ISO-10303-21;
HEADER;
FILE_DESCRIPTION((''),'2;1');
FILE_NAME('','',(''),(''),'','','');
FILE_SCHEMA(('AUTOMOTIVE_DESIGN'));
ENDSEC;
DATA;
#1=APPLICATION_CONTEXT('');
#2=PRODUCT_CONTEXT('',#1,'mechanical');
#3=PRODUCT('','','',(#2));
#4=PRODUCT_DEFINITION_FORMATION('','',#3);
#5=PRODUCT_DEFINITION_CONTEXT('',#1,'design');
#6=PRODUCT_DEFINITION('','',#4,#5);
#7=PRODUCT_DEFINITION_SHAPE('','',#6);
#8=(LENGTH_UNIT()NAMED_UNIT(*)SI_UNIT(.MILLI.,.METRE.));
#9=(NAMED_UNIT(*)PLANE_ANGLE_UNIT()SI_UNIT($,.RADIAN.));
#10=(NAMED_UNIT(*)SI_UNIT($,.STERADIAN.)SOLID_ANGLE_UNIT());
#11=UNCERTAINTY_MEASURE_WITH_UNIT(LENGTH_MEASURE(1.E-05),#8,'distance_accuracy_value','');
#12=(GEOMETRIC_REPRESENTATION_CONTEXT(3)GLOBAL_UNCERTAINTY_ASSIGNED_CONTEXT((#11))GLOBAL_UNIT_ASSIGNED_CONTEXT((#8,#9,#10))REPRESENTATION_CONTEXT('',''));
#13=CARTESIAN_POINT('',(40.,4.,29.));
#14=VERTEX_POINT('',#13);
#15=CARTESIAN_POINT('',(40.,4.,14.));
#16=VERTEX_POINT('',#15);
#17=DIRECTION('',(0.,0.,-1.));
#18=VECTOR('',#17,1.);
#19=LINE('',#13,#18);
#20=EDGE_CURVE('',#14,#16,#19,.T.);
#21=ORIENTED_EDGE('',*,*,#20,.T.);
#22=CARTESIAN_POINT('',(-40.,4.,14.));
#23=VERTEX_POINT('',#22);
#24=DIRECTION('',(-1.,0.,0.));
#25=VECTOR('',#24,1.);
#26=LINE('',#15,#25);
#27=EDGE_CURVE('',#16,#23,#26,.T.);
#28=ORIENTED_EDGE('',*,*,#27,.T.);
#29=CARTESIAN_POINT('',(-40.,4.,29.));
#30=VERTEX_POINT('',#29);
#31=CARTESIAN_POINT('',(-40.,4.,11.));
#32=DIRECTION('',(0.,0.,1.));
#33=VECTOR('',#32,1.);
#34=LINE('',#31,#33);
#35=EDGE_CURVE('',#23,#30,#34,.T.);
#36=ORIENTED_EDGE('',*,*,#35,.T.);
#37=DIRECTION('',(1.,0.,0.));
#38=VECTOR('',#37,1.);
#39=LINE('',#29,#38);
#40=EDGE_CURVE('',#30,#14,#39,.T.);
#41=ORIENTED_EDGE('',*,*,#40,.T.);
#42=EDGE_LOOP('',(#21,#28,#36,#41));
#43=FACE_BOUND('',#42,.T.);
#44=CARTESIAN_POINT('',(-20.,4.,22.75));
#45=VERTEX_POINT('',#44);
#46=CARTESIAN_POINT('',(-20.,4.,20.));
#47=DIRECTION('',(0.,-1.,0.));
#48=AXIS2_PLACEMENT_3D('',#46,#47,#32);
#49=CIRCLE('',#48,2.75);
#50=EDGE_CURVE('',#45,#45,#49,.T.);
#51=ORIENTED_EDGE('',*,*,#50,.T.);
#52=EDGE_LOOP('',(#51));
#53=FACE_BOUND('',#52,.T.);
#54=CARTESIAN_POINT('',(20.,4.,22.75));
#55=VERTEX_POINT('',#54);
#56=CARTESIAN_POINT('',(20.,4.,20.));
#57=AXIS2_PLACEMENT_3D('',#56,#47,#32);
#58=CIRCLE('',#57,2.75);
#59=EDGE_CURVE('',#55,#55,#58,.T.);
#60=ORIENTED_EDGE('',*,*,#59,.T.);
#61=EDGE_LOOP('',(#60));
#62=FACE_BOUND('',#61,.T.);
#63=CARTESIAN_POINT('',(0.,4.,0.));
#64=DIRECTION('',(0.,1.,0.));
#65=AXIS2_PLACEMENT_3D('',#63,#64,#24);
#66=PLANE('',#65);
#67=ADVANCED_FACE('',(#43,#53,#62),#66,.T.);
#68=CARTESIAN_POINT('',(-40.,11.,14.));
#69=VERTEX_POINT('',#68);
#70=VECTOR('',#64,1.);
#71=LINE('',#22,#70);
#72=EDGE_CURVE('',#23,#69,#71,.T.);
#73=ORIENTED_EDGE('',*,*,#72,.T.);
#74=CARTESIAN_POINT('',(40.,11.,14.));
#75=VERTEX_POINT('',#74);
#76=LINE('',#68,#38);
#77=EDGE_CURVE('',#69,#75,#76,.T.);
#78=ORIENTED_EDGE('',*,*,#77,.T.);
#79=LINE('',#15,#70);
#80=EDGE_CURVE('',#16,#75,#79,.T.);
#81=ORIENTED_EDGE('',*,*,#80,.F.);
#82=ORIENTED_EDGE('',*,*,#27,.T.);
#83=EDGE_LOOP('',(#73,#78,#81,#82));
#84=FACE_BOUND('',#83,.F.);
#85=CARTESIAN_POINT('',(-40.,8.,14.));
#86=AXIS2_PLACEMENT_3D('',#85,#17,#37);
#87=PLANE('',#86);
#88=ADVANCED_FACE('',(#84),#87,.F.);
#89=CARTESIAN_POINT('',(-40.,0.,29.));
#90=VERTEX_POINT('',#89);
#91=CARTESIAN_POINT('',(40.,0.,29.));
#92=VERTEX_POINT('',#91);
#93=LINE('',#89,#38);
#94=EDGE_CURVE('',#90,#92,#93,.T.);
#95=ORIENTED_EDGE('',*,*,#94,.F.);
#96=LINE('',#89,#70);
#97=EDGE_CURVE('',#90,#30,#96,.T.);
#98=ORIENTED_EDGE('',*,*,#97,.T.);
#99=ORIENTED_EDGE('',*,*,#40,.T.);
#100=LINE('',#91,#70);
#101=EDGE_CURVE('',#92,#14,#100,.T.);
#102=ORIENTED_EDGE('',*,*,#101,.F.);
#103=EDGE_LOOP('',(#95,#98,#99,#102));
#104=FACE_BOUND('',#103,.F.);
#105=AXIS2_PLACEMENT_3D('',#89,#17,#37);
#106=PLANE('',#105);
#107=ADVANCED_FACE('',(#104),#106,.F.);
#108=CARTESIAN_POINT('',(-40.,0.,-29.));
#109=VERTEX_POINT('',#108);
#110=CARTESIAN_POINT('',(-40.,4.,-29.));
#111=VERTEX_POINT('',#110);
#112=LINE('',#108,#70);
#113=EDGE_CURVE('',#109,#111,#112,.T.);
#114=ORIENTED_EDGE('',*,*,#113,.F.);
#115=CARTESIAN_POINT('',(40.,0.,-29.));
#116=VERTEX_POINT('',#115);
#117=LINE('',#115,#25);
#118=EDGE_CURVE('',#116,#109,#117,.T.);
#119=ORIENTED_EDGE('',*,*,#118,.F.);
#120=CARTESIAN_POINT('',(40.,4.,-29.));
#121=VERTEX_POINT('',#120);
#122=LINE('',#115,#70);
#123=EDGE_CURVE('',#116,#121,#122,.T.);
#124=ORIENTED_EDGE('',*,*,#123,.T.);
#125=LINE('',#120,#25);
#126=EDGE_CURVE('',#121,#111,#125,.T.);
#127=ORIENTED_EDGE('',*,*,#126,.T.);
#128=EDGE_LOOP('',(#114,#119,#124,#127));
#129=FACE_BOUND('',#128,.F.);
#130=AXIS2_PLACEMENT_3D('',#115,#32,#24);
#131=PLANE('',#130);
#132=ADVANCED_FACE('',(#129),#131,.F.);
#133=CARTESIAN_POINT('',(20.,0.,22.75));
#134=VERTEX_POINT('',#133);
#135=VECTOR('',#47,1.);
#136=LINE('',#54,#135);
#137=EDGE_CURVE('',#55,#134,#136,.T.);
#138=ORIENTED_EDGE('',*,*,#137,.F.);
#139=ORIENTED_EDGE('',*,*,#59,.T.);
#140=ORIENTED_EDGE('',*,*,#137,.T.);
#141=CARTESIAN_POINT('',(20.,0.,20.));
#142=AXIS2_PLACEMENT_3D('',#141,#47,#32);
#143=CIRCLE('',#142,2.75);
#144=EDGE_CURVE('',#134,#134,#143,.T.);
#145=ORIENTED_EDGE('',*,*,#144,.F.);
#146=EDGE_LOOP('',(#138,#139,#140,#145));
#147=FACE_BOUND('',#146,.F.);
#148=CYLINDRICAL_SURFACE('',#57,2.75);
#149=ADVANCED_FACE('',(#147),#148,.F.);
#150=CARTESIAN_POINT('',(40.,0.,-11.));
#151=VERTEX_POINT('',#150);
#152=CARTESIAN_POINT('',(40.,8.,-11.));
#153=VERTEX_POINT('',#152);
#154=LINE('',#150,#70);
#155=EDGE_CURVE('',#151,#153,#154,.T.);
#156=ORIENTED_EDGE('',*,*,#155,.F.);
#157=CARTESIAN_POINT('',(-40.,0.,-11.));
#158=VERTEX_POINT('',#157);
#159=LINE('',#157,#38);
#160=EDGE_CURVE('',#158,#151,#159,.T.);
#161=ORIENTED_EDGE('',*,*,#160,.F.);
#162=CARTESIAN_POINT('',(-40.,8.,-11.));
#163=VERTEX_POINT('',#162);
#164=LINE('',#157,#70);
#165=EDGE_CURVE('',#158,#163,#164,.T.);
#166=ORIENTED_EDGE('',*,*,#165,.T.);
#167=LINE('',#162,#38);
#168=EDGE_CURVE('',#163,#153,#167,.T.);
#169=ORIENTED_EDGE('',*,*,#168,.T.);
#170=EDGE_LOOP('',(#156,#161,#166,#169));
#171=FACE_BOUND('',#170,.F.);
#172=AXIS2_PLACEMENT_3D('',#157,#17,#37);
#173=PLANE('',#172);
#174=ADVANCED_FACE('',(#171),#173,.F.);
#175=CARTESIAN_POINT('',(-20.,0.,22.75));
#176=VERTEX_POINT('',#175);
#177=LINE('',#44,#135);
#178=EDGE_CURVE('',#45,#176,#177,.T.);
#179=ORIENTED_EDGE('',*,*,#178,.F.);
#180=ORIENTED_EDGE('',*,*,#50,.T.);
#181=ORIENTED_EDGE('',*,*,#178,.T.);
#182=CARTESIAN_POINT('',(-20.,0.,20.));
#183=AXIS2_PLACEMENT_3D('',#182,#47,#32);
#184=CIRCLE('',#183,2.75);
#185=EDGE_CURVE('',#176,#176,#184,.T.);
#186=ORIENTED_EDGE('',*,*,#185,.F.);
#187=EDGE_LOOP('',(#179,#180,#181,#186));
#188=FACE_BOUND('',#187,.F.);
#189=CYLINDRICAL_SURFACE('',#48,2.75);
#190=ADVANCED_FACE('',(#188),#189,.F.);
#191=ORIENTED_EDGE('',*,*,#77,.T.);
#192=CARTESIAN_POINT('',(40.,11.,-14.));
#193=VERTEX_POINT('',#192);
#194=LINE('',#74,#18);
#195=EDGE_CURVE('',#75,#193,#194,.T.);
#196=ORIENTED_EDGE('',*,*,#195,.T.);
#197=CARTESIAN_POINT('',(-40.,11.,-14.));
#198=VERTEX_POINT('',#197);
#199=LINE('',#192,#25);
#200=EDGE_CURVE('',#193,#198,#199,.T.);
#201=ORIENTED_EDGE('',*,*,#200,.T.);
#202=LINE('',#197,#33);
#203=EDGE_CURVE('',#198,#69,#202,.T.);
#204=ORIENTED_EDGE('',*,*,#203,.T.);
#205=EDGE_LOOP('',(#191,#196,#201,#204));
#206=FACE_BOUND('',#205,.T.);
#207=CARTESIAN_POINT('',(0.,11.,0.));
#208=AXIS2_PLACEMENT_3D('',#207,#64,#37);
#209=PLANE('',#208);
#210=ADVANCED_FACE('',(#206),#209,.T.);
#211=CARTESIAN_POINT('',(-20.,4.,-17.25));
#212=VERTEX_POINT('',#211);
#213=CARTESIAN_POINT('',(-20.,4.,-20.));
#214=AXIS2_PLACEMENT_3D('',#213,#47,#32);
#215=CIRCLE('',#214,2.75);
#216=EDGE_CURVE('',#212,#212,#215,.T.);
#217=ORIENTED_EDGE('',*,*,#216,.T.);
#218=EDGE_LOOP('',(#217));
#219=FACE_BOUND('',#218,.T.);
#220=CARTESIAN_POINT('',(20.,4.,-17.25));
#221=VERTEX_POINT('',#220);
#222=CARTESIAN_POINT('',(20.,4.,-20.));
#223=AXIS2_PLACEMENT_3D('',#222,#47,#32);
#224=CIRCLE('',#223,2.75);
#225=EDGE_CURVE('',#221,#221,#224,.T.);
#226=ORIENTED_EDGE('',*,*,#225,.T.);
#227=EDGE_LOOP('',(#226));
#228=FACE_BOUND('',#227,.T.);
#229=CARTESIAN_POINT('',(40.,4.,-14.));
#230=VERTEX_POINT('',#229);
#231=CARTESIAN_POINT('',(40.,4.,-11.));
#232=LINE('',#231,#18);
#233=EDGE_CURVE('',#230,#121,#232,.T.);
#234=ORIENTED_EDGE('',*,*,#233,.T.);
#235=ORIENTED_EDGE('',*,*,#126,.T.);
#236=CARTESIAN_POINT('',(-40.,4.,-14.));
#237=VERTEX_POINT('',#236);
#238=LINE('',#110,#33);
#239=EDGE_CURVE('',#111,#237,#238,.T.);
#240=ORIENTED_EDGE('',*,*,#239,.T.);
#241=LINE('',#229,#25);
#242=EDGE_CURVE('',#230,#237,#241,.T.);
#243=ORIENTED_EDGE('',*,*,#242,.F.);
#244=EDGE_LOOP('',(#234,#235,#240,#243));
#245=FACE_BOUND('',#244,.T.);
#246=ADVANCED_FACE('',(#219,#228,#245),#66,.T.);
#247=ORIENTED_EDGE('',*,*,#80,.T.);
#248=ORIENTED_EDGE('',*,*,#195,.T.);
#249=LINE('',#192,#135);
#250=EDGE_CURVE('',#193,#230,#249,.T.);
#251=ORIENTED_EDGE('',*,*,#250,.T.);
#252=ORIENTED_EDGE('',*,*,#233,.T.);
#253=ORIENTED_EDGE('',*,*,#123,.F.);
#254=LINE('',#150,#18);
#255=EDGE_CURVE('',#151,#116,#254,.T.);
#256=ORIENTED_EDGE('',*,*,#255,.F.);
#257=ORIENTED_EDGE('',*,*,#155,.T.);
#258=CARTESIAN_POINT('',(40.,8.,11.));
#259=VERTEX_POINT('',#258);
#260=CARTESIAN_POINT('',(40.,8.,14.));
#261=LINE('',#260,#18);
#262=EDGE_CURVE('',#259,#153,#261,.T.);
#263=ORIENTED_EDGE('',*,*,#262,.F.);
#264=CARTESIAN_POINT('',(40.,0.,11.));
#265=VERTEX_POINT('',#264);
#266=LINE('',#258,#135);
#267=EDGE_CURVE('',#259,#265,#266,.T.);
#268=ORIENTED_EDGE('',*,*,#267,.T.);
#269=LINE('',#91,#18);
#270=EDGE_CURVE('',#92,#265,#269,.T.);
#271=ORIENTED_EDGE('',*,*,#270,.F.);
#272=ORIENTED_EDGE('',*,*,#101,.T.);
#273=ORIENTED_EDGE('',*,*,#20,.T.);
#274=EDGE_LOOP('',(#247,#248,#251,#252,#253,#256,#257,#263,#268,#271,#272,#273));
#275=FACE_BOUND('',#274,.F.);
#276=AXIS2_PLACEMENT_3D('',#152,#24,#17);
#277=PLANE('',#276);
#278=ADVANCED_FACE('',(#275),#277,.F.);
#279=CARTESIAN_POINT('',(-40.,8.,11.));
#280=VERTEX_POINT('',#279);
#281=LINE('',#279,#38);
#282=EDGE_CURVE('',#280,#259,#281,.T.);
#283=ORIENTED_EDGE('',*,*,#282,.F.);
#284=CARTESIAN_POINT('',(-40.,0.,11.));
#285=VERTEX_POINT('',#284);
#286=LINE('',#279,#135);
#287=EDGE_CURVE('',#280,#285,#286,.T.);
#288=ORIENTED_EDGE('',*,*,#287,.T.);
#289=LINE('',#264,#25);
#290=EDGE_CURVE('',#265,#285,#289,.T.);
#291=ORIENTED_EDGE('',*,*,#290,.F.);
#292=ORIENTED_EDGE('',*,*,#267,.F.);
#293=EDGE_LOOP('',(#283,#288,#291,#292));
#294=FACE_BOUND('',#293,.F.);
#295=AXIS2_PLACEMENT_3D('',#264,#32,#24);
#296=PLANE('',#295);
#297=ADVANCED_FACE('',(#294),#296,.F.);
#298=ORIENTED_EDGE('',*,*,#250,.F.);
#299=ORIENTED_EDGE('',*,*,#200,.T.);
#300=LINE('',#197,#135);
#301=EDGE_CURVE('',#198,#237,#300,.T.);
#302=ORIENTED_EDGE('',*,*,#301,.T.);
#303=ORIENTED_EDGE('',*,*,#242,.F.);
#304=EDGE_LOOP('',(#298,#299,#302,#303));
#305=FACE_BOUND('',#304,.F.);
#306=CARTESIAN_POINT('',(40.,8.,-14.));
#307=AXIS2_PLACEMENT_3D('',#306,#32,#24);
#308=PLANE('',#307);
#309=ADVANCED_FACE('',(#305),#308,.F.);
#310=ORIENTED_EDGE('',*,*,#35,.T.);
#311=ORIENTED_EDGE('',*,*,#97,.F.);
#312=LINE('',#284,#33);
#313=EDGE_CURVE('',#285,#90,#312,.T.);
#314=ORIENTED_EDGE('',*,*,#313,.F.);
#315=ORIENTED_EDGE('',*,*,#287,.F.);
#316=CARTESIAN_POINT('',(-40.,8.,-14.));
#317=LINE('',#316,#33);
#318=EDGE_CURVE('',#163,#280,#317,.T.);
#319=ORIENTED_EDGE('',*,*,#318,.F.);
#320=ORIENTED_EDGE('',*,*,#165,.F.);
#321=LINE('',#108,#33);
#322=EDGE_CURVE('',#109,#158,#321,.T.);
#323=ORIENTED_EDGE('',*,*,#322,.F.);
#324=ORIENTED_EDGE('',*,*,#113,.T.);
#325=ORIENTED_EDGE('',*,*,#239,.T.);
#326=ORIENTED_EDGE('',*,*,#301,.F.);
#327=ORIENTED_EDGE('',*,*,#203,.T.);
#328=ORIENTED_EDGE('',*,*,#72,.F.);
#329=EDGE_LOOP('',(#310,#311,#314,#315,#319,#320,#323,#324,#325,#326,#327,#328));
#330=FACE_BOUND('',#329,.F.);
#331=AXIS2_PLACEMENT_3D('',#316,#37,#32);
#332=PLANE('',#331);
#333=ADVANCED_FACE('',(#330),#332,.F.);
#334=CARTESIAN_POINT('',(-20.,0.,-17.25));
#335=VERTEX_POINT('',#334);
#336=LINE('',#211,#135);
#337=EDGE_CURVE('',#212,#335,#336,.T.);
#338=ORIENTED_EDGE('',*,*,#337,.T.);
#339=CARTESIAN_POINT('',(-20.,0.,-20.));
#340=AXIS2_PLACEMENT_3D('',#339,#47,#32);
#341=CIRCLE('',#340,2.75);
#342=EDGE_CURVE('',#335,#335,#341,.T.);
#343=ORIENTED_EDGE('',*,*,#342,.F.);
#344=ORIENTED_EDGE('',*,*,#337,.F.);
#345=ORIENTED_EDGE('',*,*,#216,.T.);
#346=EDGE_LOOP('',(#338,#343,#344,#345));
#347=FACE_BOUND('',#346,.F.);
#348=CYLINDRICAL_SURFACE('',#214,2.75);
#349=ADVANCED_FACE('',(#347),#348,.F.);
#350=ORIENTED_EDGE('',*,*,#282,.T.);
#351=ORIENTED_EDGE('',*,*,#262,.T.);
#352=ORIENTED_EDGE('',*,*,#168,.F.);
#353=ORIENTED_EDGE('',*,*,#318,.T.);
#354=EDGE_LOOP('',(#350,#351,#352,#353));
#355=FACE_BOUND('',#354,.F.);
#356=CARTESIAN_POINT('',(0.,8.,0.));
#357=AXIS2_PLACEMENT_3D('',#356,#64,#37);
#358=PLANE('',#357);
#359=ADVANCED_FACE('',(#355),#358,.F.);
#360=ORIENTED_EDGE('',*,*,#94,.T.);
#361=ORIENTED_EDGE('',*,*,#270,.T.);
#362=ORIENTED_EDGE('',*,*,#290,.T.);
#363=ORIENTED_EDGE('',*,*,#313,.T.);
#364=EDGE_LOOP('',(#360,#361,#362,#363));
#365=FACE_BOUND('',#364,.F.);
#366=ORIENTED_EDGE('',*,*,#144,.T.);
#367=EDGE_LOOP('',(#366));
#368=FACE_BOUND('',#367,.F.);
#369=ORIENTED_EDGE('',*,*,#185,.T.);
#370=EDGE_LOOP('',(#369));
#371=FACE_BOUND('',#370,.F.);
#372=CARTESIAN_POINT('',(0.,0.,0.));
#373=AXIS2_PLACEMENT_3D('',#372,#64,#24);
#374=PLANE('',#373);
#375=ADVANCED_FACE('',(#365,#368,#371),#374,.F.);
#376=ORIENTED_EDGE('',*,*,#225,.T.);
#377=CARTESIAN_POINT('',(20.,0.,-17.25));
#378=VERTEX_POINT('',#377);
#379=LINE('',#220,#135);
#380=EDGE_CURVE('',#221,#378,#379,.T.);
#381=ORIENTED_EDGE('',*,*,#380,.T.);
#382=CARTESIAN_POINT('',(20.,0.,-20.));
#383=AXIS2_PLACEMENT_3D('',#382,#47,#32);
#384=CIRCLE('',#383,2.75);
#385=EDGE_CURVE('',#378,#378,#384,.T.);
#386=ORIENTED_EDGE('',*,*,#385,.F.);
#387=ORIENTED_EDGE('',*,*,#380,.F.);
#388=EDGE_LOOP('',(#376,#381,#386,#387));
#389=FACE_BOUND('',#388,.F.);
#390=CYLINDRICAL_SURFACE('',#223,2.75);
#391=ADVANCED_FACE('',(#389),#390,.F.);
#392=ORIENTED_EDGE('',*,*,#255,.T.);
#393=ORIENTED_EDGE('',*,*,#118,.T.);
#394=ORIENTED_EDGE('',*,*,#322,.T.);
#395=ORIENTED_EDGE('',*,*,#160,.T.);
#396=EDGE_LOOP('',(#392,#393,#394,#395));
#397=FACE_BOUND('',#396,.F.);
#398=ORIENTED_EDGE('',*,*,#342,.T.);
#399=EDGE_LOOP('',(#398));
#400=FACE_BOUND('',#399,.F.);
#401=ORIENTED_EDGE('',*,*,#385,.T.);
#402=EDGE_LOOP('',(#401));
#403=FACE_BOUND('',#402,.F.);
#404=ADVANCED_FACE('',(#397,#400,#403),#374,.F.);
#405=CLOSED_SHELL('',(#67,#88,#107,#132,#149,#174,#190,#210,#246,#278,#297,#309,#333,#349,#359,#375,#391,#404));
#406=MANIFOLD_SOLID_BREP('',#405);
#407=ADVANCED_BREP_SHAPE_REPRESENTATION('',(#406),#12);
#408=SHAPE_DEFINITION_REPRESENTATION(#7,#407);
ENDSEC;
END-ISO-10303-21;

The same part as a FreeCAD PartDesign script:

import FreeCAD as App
import Part
import Sketcher


def add_polygon(sketch, points):
    """Adds a closed chain of lines whose ends are joined by coincident constraints."""
    first, n = sketch.GeometryCount, len(points)
    for a, b in zip(points, points[1:] + points[:1]):
        sketch.addGeometry(Part.LineSegment(App.Vector(*a, 0), App.Vector(*b, 0)), False)
    for i in range(n):
        sketch.addConstraint(Sketcher.Constraint("Coincident", first + i, 2, first + (i + 1) % n, 1))

doc = App.newDocument("Part")
body = doc.addObject("PartDesign::Body", "Body")
body.AllowCompound = True

sketch1 = doc.addObject("Sketcher::SketchObject", "Sketch")
body.addObject(sketch1)
sketch1.AttachmentSupport = (doc.XZ_Plane, [""])
sketch1.MapMode = "FlatFace"
add_polygon(sketch1, [(-40, 11), (-40, 29), (40, 29), (40, 11)])
add_polygon(sketch1, [(-40, -29), (-40, -11), (40, -11), (40, -29)])
sketch1.addConstraint(Sketcher.Constraint("Vertical", 0))
sketch1.addConstraint(Sketcher.Constraint("Horizontal", 1))
sketch1.addConstraint(Sketcher.Constraint("Vertical", 2))
sketch1.addConstraint(Sketcher.Constraint("Horizontal", 3))
sketch1.addConstraint(Sketcher.Constraint("Vertical", 4))
sketch1.addConstraint(Sketcher.Constraint("Horizontal", 5))
sketch1.addConstraint(Sketcher.Constraint("Vertical", 6))
sketch1.addConstraint(Sketcher.Constraint("Horizontal", 7))
sketch1.addConstraint(Sketcher.Constraint("Symmetric", 2, 2, 4, 2, -1, 1))
sketch1.addConstraint(Sketcher.Constraint("Symmetric", 0, 2, 6, 2, -1, 1))
sketch1.addConstraint(Sketcher.Constraint("Vertical", 3, 2, 4, 2))
sketch1.addConstraint(Sketcher.Constraint("DistanceX", 1, 1, 1, 2, 80.0))
sketch1.addConstraint(Sketcher.Constraint("DistanceY", 0, 1, 0, 2, 18.0))
sketch1.addConstraint(Sketcher.Constraint("DistanceY", 6, 2, 1, 2, 58.0))
pad1 = doc.addObject("PartDesign::Pad", "Pad")
body.addObject(pad1)
pad1.Profile = sketch1
pad1.Length = 4
pad1.Reversed = True

sketch2 = doc.addObject("Sketcher::SketchObject", "Sketch001")
body.addObject(sketch2)
sketch2.AttachmentSupport = (doc.XZ_Plane, [""])
sketch2.MapMode = "FlatFace"
sketch2.AttachmentOffset = App.Placement(App.Vector(0, 0, -4), App.Rotation())
add_polygon(sketch2, [(-40, 14), (40, 14), (40, 11), (-40, 11)])
add_polygon(sketch2, [(-40, -11), (40, -11), (40, -14), (-40, -14)])
sketch2.addConstraint(Sketcher.Constraint("Horizontal", 0))
sketch2.addConstraint(Sketcher.Constraint("Vertical", 1))
sketch2.addConstraint(Sketcher.Constraint("Horizontal", 2))
sketch2.addConstraint(Sketcher.Constraint("Vertical", 3))
sketch2.addConstraint(Sketcher.Constraint("Horizontal", 4))
sketch2.addConstraint(Sketcher.Constraint("Vertical", 5))
sketch2.addConstraint(Sketcher.Constraint("Horizontal", 6))
sketch2.addConstraint(Sketcher.Constraint("Vertical", 7))
sketch2.addConstraint(Sketcher.Constraint("Symmetric", 2, 2, 4, 2, -1, 1))
sketch2.addConstraint(Sketcher.Constraint("Symmetric", 0, 2, 6, 2, -1, 1))
sketch2.addConstraint(Sketcher.Constraint("Vertical", 1, 2, 4, 2))
sketch2.addConstraint(Sketcher.Constraint("DistanceY", 1, 2, 1, 1, 3.0))
sketch2.addConstraint(Sketcher.Constraint("DistanceX", 0, 1, 0, 2, 80.0))
sketch2.addConstraint(Sketcher.Constraint("DistanceY", -1, 1, 0, 2, 14.0))
pad2 = doc.addObject("PartDesign::Pad", "Pad001")
body.addObject(pad2)
pad2.Profile = sketch2
pad2.Length = 4
pad2.Reversed = True

sketch3 = doc.addObject("Sketcher::SketchObject", "Sketch002")
body.addObject(sketch3)
sketch3.AttachmentSupport = (doc.XZ_Plane, [""])
sketch3.MapMode = "FlatFace"
sketch3.AttachmentOffset = App.Placement(App.Vector(0, 0, -8), App.Rotation())
add_polygon(sketch3, [(-40, -14), (-40, 14), (40, 14), (40, -14)])
sketch3.addConstraint(Sketcher.Constraint("Vertical", 0))
sketch3.addConstraint(Sketcher.Constraint("Horizontal", 1))
sketch3.addConstraint(Sketcher.Constraint("Vertical", 2))
sketch3.addConstraint(Sketcher.Constraint("Horizontal", 3))
sketch3.addConstraint(Sketcher.Constraint("Symmetric", 0, 2, 2, 2, -1, 1))
sketch3.addConstraint(Sketcher.Constraint("DistanceX", 1, 1, 1, 2, 80.0))
sketch3.addConstraint(Sketcher.Constraint("DistanceY", 0, 1, 0, 2, 28.0))
pad3 = doc.addObject("PartDesign::Pad", "Pad002")
body.addObject(pad3)
pad3.Profile = sketch3
pad3.Length = 3
pad3.Reversed = True

sketch4 = doc.addObject("Sketcher::SketchObject", "Sketch003")
body.addObject(sketch4)
sketch4.AttachmentSupport = (doc.XZ_Plane, [""])
sketch4.MapMode = "FlatFace"
sketch4.AttachmentOffset = App.Placement(App.Vector(0, 0, -4), App.Rotation())
sketch4.addGeometry(Part.Circle(App.Vector(-20, 20, 0), App.Vector(0, 0, 1), 2.75), False)
sketch4.addGeometry(Part.Circle(App.Vector(20, 20, 0), App.Vector(0, 0, 1), 2.75), False)
sketch4.addGeometry(Part.Circle(App.Vector(-20, -20, 0), App.Vector(0, 0, 1), 2.75), False)
sketch4.addGeometry(Part.Circle(App.Vector(20, -20, 0), App.Vector(0, 0, 1), 2.75), False)
sketch4.addConstraint(Sketcher.Constraint("Equal", 0, 1))
sketch4.addConstraint(Sketcher.Constraint("Equal", 1, 2))
sketch4.addConstraint(Sketcher.Constraint("Equal", 2, 3))
sketch4.addConstraint(Sketcher.Constraint("Symmetric", 1, 3, 2, 3, -1, 1))
sketch4.addConstraint(Sketcher.Constraint("Symmetric", 0, 3, 3, 3, -1, 1))
sketch4.addConstraint(Sketcher.Constraint("Symmetric", 0, 3, 1, 3, -2))
sketch4.addConstraint(Sketcher.Constraint("Diameter", 0, 5.5))
sketch4.addConstraint(Sketcher.Constraint("DistanceX", 0, 3, -1, 1, 20.0))
sketch4.addConstraint(Sketcher.Constraint("DistanceY", -1, 1, 0, 3, 20.0))
doc.recompute()
hole = doc.addObject("PartDesign::Hole", "Hole")
body.addObject(hole)
hole.Profile = sketch4
hole.ThreadType = "None"
hole.Diameter = 5.5
hole.DepthType = "ThroughAll"
hole.Reversed = True

doc.recompute()
